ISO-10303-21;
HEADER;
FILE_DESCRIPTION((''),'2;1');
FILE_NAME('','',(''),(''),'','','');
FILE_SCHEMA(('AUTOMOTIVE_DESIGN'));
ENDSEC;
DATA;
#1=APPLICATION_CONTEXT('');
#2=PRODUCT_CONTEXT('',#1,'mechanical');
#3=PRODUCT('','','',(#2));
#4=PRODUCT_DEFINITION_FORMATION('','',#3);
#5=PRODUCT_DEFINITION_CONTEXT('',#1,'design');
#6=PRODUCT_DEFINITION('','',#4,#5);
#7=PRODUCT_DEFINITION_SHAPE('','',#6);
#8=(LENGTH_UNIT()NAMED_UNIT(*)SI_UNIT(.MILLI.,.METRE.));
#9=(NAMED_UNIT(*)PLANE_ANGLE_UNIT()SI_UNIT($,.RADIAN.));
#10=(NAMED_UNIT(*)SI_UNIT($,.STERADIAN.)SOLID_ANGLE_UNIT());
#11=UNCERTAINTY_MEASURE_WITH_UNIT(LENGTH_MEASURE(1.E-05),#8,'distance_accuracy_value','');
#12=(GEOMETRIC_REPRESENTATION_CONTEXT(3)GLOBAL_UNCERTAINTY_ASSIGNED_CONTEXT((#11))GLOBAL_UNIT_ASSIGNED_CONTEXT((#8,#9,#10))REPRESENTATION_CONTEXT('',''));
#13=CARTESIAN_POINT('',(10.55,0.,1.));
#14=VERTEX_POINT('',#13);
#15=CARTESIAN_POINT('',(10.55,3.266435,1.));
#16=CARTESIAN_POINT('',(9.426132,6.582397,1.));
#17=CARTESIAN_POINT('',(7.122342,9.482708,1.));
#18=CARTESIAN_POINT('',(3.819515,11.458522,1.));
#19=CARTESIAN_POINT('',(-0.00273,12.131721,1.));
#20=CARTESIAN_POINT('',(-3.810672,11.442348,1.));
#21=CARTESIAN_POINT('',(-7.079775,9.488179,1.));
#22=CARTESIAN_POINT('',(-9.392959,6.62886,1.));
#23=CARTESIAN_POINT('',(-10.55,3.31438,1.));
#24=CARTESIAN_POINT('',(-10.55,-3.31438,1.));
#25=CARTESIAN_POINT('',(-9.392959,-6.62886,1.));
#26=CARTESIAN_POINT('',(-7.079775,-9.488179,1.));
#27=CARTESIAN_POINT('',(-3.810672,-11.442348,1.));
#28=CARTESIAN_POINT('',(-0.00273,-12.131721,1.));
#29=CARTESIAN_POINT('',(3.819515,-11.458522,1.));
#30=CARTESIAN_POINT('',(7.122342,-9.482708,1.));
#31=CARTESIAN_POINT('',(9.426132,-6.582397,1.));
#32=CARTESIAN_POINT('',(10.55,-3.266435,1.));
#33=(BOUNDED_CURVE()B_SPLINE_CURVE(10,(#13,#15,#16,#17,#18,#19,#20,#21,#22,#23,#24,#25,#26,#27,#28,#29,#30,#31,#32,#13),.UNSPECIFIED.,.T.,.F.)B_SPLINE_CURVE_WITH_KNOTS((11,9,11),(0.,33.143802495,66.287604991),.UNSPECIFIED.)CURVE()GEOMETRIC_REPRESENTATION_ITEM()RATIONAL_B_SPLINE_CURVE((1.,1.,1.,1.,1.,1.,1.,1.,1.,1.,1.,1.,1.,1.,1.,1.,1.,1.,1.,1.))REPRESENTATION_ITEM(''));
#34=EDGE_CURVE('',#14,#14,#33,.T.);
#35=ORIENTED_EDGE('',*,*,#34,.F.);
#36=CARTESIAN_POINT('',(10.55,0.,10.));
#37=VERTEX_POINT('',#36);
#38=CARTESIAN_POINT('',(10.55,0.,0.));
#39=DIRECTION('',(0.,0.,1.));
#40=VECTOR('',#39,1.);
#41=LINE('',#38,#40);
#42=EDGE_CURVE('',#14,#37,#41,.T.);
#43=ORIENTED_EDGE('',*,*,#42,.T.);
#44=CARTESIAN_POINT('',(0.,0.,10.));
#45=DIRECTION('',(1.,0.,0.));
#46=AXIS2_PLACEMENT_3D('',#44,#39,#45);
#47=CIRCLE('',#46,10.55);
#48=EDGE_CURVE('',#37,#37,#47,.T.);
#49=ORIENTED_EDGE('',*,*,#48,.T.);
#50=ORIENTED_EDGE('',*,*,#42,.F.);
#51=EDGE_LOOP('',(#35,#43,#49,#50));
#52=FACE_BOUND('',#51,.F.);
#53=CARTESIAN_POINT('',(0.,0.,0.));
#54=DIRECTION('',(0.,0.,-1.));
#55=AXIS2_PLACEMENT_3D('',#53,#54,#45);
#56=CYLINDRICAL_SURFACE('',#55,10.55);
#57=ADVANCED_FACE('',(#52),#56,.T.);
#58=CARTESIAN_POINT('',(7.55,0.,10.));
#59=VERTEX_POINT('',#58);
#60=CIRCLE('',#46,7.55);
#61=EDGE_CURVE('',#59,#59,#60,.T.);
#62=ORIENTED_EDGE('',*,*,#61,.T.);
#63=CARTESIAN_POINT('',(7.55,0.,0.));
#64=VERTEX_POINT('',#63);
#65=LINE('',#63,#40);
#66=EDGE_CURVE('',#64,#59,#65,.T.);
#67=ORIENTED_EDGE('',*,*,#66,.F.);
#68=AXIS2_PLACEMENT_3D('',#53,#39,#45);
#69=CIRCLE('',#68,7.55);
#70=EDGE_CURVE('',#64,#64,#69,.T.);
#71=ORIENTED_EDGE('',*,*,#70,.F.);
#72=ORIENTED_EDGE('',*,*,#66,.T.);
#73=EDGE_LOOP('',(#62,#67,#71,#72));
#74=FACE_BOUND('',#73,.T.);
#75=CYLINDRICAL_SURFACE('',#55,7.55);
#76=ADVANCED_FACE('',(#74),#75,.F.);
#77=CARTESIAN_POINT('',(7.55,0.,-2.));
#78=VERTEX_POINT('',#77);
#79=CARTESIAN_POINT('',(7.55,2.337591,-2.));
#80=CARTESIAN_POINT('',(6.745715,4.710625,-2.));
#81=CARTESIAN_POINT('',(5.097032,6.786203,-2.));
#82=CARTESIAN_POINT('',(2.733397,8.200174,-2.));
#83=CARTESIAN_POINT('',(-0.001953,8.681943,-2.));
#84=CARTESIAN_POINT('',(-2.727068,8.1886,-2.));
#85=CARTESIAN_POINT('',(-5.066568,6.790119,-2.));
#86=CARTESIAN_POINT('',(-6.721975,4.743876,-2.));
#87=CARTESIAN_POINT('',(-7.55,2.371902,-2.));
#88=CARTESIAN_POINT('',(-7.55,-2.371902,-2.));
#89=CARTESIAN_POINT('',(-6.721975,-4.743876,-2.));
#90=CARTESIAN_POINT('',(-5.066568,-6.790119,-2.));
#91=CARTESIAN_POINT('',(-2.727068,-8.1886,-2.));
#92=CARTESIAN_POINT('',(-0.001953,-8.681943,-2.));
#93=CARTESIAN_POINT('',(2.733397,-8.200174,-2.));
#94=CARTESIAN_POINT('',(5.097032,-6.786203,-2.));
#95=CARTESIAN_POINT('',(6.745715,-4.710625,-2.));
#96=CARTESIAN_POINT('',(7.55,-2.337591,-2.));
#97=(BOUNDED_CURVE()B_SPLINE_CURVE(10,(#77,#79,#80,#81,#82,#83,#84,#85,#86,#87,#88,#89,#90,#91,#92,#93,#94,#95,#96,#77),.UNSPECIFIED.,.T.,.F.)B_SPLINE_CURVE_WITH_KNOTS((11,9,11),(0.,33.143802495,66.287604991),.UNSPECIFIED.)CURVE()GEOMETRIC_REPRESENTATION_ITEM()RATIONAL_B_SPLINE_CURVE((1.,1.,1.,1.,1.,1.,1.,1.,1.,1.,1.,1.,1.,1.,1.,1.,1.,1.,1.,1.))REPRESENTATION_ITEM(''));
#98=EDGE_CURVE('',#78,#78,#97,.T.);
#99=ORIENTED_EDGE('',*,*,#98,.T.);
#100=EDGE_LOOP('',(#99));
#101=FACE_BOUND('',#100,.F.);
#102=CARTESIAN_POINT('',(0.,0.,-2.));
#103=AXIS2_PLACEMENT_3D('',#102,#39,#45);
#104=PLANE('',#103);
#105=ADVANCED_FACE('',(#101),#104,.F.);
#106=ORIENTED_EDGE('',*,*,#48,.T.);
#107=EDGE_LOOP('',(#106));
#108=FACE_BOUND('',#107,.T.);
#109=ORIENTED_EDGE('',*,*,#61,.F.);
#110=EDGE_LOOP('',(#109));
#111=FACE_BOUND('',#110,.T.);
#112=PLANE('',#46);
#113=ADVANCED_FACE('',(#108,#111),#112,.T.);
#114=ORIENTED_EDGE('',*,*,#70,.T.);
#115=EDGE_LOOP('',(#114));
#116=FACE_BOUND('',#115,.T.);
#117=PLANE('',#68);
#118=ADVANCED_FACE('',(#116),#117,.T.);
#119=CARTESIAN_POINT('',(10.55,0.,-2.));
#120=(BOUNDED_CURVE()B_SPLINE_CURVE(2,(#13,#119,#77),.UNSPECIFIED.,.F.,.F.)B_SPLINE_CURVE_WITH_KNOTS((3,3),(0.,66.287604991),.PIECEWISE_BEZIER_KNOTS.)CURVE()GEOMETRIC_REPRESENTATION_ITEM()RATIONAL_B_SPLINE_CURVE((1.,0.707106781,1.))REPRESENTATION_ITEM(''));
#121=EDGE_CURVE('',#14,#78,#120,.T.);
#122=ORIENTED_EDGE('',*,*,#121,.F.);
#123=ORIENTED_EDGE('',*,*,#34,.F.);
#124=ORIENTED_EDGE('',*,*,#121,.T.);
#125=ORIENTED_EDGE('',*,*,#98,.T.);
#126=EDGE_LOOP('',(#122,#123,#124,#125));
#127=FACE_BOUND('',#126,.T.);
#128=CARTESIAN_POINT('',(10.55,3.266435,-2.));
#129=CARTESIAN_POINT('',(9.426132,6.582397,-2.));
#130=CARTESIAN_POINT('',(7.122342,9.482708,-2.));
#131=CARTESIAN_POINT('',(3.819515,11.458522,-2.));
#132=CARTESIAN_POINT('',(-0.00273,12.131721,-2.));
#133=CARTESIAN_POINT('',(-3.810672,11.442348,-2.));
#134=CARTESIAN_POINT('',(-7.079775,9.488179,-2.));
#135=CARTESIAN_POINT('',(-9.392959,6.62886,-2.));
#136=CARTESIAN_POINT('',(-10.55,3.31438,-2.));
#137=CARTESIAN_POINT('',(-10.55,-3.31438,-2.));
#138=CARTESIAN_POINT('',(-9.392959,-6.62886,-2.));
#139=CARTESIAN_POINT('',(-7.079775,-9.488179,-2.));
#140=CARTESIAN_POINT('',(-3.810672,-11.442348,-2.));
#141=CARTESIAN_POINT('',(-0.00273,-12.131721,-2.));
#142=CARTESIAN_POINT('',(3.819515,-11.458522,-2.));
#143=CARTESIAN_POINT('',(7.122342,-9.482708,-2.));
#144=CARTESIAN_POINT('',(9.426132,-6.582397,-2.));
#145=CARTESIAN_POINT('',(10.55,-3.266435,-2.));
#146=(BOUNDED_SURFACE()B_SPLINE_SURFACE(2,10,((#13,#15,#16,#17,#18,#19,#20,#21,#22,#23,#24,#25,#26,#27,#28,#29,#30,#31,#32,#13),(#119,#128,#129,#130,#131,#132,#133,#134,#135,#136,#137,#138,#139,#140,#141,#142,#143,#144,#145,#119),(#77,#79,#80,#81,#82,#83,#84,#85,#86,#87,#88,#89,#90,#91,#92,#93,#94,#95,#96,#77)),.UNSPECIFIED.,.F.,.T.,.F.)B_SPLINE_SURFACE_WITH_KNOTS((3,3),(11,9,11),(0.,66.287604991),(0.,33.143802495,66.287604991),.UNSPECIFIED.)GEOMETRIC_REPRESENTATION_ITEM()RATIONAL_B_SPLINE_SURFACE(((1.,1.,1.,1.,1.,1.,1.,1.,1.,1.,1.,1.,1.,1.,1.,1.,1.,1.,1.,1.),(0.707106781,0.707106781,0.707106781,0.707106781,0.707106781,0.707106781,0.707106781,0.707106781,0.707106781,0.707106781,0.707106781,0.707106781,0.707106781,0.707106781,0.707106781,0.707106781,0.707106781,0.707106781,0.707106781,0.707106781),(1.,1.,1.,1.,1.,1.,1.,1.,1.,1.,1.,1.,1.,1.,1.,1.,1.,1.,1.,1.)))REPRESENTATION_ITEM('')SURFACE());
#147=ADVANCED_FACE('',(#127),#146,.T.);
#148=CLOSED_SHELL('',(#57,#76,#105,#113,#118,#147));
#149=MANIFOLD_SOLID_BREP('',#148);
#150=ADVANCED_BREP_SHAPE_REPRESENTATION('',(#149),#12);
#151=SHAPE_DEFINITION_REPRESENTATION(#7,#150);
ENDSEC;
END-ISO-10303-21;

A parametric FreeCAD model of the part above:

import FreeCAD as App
import Part
import Sketcher


def edges_at(feature, points):
    """Names of the edges that pass closest to the given points."""
    edges = feature.Shape.Edges
    near = lambda p: min(range(len(edges)), key=lambda i: edges[i].distToShape(Part.Vertex(*p))[0])
    return sorted({f"Edge{near(p) + 1}" for p in points})

doc = App.newDocument("Part")
params = doc.addObject("Spreadsheet::Sheet", "Params")
for row, (alias, value) in enumerate([
    ("sketch1_diameter", "15.1 mm"),
    ("sketch1_diameter2", "21.1 mm"),
    ("pad1_length", "10 mm"),
    ("sketch2_diameter", "21.1 mm"),
    ("pad2_length", "2 mm"),
    ("fillet_radius", "3 mm"),
], start=1):
    params.set(f"A{row}", alias)
    params.set(f"B{row}", "=" + value)
    params.setAlias(f"B{row}", alias)

body = doc.addObject("PartDesign::Body", "Body")

# Sketch on XY plane
sketch1 = doc.addObject("Sketcher::SketchObject", "Sketch")
body.addObject(sketch1)
sketch1.AttachmentSupport = (doc.XY_Plane, [""])
sketch1.MapMode = "FlatFace"
sketch1.addGeometry([
    Part.Circle(App.Vector(0, 0, 0), App.Vector(0, 0, 1), 10.55),
    Part.Circle(App.Vector(0, 0, 0), App.Vector(0, 0, 1), 7.55),
], False)
sketch1.addConstraint([
    Sketcher.Constraint("Coincident", 0, 3, -1, 1),
    Sketcher.Constraint("Coincident", 1, 3, -1, 1),
    Sketcher.Constraint("Diameter", 1, 15.1),
    Sketcher.Constraint("Diameter", 0, 21.1),
])
sketch1.setExpression("Constraints[2]", "Params.sketch1_diameter")
sketch1.setExpression("Constraints[3]", "Params.sketch1_diameter2")
pad1 = doc.addObject("PartDesign::Pad", "Pad")
body.addObject(pad1)
pad1.Profile = sketch1
pad1.setExpression("Length", "Params.pad1_length")

# Sketch on XY plane
sketch2 = doc.addObject("Sketcher::SketchObject", "Sketch001")
body.addObject(sketch2)
sketch2.AttachmentSupport = (doc.XY_Plane, [""])
sketch2.MapMode = "FlatFace"
sketch2.addGeometry(Part.Circle(App.Vector(0, 0, 0), App.Vector(0, 0, 1), 10.55), False)
sketch2.addConstraint([
    Sketcher.Constraint("Coincident", 0, 3, -1, 1),
    Sketcher.Constraint("Diameter", 0, 21.1),
])
sketch2.setExpression("Constraints[1]", "Params.sketch2_diameter")
pad2 = doc.addObject("PartDesign::Pad", "Pad001")
body.addObject(pad2)
pad2.Profile = sketch2
pad2.setExpression("Length", "Params.pad2_length")
pad2.Reversed = True
doc.recompute()

fillet = doc.addObject("PartDesign::Fillet", "Fillet")
body.addObject(fillet)
fillet.Base = (pad2, edges_at(pad2, [(-9.836, 3.815, -2)]))
fillet.setExpression("Radius", "Params.fillet_radius")

doc.recompute()
